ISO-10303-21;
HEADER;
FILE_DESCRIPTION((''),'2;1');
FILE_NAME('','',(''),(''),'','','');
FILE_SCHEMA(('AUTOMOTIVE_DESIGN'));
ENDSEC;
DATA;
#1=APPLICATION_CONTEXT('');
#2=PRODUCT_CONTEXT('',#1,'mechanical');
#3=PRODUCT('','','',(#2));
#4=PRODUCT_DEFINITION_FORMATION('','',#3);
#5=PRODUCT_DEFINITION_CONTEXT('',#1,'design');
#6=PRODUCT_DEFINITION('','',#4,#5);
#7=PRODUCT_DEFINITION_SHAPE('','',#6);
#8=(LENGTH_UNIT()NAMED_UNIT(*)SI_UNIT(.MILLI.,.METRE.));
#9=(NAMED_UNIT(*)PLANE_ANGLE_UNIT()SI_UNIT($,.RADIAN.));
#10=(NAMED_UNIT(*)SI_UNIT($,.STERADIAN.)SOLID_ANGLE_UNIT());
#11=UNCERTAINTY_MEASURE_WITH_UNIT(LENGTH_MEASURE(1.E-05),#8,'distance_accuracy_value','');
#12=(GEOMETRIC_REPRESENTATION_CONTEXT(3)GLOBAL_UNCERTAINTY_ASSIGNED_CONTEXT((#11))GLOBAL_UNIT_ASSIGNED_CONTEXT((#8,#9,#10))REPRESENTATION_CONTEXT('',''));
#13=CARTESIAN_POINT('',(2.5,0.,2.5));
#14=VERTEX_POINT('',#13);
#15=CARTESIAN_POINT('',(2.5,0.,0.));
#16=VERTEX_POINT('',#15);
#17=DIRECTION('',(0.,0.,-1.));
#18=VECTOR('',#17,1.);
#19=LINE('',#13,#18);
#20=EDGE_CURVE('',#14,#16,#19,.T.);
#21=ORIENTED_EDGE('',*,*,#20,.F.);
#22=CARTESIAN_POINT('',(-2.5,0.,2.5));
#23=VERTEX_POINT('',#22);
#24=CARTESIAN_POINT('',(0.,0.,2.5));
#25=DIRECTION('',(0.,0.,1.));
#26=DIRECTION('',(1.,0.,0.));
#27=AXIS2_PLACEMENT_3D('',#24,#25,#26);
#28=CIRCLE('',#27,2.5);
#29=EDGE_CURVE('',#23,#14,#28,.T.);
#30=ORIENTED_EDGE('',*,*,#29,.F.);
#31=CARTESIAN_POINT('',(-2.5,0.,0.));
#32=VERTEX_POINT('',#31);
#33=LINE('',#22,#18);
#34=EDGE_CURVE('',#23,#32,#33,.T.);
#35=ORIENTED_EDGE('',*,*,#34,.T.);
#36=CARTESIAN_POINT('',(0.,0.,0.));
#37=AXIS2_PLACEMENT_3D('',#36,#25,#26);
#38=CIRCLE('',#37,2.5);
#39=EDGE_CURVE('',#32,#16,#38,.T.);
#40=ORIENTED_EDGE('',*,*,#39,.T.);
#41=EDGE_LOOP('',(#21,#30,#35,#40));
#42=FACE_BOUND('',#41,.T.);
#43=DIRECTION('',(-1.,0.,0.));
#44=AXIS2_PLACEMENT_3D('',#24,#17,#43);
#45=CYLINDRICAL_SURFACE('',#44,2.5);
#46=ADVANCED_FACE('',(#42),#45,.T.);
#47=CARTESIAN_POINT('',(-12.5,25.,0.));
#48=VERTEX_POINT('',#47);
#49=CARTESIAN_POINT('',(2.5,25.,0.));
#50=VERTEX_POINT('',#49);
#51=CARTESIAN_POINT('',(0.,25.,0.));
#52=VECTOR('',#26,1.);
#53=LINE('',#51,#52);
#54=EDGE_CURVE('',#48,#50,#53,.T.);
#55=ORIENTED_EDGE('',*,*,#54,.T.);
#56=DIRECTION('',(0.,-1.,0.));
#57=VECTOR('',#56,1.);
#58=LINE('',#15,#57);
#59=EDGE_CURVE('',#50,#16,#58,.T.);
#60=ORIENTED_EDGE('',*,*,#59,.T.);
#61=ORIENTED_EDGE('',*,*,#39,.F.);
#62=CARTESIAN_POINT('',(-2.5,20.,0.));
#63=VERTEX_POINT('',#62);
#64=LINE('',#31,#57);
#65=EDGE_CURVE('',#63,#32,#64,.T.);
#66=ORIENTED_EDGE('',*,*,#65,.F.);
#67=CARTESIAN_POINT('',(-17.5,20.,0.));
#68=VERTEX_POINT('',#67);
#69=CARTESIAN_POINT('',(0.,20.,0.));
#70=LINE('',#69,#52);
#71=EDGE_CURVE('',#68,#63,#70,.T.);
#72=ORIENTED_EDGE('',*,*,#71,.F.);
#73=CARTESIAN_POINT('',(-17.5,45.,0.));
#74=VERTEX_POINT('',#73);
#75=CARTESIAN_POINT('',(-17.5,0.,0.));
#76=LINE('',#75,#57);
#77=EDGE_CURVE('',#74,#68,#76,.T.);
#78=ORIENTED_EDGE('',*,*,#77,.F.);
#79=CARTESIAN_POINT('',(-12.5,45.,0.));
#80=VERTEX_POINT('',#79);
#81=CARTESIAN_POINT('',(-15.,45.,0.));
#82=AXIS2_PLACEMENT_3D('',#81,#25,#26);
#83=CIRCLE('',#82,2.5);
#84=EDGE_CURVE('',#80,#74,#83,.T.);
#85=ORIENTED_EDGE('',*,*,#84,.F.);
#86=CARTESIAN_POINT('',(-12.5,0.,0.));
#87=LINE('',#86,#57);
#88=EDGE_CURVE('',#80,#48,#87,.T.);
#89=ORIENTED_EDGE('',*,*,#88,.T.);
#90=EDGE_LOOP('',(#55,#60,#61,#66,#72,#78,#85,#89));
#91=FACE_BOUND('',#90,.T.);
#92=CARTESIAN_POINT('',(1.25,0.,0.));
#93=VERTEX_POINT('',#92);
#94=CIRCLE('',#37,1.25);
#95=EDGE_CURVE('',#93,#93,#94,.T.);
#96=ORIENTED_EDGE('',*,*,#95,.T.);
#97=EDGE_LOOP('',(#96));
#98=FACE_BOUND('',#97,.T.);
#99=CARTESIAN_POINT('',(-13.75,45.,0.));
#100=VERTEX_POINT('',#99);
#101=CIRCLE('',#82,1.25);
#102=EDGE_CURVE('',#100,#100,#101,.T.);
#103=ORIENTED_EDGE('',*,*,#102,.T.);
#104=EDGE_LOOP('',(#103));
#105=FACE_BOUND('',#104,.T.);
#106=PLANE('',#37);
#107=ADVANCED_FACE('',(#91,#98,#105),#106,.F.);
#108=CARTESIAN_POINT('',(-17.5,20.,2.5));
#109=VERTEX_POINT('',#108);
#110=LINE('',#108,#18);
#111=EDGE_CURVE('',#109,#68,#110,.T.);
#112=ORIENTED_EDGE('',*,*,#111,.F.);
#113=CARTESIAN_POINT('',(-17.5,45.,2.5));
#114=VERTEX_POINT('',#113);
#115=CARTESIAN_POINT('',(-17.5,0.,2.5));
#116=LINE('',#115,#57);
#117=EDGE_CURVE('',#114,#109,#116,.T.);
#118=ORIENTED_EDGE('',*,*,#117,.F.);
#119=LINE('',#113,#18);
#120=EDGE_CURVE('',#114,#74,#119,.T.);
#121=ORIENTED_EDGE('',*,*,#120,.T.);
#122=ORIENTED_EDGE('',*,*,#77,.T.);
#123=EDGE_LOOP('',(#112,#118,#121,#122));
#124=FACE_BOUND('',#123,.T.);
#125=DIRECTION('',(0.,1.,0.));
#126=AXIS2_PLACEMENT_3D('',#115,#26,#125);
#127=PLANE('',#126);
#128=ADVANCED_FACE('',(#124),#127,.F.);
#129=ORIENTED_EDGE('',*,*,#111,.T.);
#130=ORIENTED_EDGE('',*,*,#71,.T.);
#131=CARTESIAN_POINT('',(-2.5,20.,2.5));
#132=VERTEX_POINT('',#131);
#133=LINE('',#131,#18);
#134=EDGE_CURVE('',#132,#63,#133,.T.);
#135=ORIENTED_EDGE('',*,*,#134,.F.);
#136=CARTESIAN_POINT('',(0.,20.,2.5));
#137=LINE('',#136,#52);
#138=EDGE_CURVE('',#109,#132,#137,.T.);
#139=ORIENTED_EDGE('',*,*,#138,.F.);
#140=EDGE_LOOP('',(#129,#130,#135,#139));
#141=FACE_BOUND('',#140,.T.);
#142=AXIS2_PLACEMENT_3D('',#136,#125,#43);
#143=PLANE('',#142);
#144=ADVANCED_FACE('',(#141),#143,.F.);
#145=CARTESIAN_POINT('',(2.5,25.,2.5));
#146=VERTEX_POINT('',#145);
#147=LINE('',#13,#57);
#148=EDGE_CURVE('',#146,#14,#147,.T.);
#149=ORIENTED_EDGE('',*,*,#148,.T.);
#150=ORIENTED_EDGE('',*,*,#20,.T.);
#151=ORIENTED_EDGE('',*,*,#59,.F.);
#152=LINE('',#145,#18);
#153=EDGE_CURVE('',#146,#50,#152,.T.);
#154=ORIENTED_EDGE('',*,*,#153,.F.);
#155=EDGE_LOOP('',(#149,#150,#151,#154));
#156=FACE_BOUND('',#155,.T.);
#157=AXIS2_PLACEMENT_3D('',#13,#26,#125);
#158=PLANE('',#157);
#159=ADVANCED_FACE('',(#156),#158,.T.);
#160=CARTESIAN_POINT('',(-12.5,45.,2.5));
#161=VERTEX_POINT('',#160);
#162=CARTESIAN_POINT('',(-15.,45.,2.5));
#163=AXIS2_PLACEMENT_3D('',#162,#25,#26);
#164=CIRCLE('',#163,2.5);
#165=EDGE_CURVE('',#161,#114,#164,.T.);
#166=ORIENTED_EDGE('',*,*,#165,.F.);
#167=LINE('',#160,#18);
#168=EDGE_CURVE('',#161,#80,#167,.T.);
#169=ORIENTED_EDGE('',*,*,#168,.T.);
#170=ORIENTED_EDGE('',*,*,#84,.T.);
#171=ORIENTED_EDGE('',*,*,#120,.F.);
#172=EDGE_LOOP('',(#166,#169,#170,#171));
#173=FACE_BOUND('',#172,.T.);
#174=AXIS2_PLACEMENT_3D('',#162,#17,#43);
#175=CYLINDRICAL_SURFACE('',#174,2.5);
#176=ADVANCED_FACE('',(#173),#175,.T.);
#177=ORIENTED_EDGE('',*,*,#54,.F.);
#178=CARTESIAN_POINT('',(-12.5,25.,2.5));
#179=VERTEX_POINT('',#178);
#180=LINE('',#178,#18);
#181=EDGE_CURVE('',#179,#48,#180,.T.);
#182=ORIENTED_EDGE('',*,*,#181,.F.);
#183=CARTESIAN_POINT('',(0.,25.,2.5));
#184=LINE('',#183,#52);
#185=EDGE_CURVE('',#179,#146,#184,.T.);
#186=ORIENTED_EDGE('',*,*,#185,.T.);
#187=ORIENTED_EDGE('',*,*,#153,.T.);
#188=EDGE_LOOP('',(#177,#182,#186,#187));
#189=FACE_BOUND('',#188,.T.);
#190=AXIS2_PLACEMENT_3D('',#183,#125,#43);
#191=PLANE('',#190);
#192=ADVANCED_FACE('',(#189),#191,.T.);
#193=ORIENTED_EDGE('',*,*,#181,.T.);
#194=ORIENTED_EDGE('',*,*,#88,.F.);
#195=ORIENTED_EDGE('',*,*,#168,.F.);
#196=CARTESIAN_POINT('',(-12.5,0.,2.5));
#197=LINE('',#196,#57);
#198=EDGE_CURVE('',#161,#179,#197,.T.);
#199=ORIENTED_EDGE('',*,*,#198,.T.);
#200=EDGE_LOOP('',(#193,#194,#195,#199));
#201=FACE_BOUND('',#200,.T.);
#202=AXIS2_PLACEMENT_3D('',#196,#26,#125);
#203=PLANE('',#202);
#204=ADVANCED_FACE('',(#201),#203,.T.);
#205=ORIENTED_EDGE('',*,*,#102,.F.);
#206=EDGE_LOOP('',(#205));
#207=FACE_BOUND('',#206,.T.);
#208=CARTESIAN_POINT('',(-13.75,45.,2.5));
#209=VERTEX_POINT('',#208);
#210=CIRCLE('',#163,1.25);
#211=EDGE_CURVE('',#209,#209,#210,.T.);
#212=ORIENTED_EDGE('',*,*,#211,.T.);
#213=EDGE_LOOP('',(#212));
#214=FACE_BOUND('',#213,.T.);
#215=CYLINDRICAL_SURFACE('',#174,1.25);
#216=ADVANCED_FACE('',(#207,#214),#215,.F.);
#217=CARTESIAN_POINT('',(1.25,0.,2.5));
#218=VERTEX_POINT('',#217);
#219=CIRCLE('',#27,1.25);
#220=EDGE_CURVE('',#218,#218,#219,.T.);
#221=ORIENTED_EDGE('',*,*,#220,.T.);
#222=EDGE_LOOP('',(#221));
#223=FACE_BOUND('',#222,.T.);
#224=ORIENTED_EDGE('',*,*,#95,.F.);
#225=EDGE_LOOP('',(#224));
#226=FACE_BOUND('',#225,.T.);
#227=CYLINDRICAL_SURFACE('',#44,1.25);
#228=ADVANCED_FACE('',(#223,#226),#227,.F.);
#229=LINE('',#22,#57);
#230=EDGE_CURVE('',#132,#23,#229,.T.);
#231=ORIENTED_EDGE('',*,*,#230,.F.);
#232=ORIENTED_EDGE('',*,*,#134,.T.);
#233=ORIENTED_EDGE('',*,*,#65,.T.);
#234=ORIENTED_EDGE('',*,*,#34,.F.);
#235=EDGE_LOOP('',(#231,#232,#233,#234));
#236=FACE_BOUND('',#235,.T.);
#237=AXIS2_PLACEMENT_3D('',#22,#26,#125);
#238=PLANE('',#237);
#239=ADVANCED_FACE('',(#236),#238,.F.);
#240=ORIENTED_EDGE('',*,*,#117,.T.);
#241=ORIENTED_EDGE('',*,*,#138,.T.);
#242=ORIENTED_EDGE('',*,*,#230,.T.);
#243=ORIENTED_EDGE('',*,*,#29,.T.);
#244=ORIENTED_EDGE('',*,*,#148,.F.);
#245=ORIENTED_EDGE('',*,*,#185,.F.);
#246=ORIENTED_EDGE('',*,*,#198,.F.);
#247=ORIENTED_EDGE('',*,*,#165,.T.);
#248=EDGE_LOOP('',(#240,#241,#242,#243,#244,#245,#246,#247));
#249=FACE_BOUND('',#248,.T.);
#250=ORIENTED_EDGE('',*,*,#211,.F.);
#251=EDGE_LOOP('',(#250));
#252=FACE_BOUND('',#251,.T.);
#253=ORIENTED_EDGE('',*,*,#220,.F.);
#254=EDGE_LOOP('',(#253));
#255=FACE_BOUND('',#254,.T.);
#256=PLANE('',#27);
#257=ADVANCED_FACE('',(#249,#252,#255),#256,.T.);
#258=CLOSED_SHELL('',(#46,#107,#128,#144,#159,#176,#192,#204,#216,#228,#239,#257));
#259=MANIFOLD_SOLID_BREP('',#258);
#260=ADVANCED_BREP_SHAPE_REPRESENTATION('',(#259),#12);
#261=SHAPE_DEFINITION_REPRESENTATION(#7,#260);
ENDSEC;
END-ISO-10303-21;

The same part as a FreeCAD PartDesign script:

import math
import FreeCAD as App
import Part
import Sketcher
from FreeCAD import Vector

doc = App.newDocument("Part")
params = doc.addObject("Spreadsheet::Sheet", "Params")
for row, (alias, value) in enumerate([
    ("sketch1_diameter", "2.5 mm"),
    ("sketch1_radius", "2.5 mm"),
    ("sketch1_width", "15 mm"),
    ("sketch1_height", "20 mm"),
    ("sketch1_height2", "25 mm"),
    ("pad1_length", "2.5 mm"),
], start=1):
    params.set(f"A{row}", alias)
    params.set(f"B{row}", "=" + value)
    params.setAlias(f"B{row}", alias)

body = doc.addObject("PartDesign::Body", "Body")

sketch1 = body.newObject("Sketcher::SketchObject", "Sketch")
sketch1.AttachmentSupport = (doc.getObject("XY_Plane"), [""])
sketch1.MapMode = "FlatFace"
sketch1.addGeometry(Part.LineSegment(Vector(-12.5, 25, 0), Vector(-12.5, 45, 0)), False)
sketch1.addGeometry(Part.ArcOfCircle(Part.Circle(Vector(-15, 45, 0), Vector(0, 0, 1), 2.5), math.radians(0), math.radians(180)), False)
sketch1.addGeometry(Part.LineSegment(Vector(-17.5, 45, 0), Vector(-17.5, 20, 0)), False)
sketch1.addGeometry(Part.LineSegment(Vector(-17.5, 20, 0), Vector(-2.5, 20, 0)), False)
sketch1.addGeometry(Part.LineSegment(Vector(-2.5, 20, 0), Vector(-2.5, 0, 0)), False)
sketch1.addGeometry(Part.ArcOfCircle(Part.Circle(Vector(0, 0, 0), Vector(0, 0, 1), 2.5), math.radians(180), math.radians(360)), False)
sketch1.addGeometry(Part.LineSegment(Vector(2.5, 0, 0), Vector(2.5, 25, 0)), False)
sketch1.addGeometry(Part.LineSegment(Vector(2.5, 25, 0), Vector(-12.5, 25, 0)), False)
sketch1.addGeometry(Part.Circle(Vector(-15, 45, 0), Vector(0, 0, 1), 1.2), False)
sketch1.addGeometry(Part.Circle(Vector(0, 0, 0), Vector(0, 0, 1), 1.2), False)
sketch1.addConstraint(Sketcher.Constraint("Tangent", 0, 2, 1, 1))
sketch1.addConstraint(Sketcher.Constraint("Tangent", 1, 2, 2, 1))
sketch1.addConstraint(Sketcher.Constraint("Coincident", 2, 2, 3, 1))
sketch1.addConstraint(Sketcher.Constraint("Coincident", 3, 2, 4, 1))
sketch1.addConstraint(Sketcher.Constraint("Tangent", 4, 2, 5, 1))
sketch1.addConstraint(Sketcher.Constraint("Tangent", 5, 2, 6, 1))
sketch1.addConstraint(Sketcher.Constraint("Coincident", 6, 2, 7, 1))
sketch1.addConstraint(Sketcher.Constraint("Coincident", 7, 2, 0, 1))
sketch1.addConstraint(Sketcher.Constraint("Vertical", 0))
sketch1.addConstraint(Sketcher.Constraint("Vertical", 2))
sketch1.addConstraint(Sketcher.Constraint("Horizontal", 3))
sketch1.addConstraint(Sketcher.Constraint("Vertical", 4))
sketch1.addConstraint(Sketcher.Constraint("Vertical", 6))
sketch1.addConstraint(Sketcher.Constraint("Horizontal", 7))
sketch1.addConstraint(Sketcher.Constraint("Coincident", 5, 3, -1, 1))
sketch1.addConstraint(Sketcher.Constraint("Coincident", 9, 3, -1, 1))
sketch1.addConstraint(Sketcher.Constraint("Coincident", 8, 3, 1, 3))
sketch1.addConstraint(Sketcher.Constraint("Equal", 1, 5))
sketch1.addConstraint(Sketcher.Constraint("Equal", 8, 9))
sketch1.addConstraint(Sketcher.Constraint("Equal", 0, 4))
sketch1.addConstraint(Sketcher.Constraint("Diameter", 8, 2.5))
sketch1.addConstraint(Sketcher.Constraint("Radius", 1, 2.5))
sketch1.addConstraint(Sketcher.Constraint("DistanceX", 3, 1, 3, 2, 15.0))
sketch1.addConstraint(Sketcher.Constraint("DistanceY", 0, 1, 0, 2, 20.0))
sketch1.addConstraint(Sketcher.Constraint("DistanceY", 2, 2, 2, 1, 25.0))
sketch1.setExpression("Constraints[20]", "Params.sketch1_diameter")
sketch1.setExpression("Constraints[21]", "Params.sketch1_radius")
sketch1.setExpression("Constraints[22]", "Params.sketch1_width")
sketch1.setExpression("Constraints[23]", "Params.sketch1_height")
sketch1.setExpression("Constraints[24]", "Params.sketch1_height2")
pad1 = body.newObject("PartDesign::Pad", "Pad")
pad1.Profile = sketch1
pad1.setExpression("Length", "Params.pad1_length")

doc.recompute()
